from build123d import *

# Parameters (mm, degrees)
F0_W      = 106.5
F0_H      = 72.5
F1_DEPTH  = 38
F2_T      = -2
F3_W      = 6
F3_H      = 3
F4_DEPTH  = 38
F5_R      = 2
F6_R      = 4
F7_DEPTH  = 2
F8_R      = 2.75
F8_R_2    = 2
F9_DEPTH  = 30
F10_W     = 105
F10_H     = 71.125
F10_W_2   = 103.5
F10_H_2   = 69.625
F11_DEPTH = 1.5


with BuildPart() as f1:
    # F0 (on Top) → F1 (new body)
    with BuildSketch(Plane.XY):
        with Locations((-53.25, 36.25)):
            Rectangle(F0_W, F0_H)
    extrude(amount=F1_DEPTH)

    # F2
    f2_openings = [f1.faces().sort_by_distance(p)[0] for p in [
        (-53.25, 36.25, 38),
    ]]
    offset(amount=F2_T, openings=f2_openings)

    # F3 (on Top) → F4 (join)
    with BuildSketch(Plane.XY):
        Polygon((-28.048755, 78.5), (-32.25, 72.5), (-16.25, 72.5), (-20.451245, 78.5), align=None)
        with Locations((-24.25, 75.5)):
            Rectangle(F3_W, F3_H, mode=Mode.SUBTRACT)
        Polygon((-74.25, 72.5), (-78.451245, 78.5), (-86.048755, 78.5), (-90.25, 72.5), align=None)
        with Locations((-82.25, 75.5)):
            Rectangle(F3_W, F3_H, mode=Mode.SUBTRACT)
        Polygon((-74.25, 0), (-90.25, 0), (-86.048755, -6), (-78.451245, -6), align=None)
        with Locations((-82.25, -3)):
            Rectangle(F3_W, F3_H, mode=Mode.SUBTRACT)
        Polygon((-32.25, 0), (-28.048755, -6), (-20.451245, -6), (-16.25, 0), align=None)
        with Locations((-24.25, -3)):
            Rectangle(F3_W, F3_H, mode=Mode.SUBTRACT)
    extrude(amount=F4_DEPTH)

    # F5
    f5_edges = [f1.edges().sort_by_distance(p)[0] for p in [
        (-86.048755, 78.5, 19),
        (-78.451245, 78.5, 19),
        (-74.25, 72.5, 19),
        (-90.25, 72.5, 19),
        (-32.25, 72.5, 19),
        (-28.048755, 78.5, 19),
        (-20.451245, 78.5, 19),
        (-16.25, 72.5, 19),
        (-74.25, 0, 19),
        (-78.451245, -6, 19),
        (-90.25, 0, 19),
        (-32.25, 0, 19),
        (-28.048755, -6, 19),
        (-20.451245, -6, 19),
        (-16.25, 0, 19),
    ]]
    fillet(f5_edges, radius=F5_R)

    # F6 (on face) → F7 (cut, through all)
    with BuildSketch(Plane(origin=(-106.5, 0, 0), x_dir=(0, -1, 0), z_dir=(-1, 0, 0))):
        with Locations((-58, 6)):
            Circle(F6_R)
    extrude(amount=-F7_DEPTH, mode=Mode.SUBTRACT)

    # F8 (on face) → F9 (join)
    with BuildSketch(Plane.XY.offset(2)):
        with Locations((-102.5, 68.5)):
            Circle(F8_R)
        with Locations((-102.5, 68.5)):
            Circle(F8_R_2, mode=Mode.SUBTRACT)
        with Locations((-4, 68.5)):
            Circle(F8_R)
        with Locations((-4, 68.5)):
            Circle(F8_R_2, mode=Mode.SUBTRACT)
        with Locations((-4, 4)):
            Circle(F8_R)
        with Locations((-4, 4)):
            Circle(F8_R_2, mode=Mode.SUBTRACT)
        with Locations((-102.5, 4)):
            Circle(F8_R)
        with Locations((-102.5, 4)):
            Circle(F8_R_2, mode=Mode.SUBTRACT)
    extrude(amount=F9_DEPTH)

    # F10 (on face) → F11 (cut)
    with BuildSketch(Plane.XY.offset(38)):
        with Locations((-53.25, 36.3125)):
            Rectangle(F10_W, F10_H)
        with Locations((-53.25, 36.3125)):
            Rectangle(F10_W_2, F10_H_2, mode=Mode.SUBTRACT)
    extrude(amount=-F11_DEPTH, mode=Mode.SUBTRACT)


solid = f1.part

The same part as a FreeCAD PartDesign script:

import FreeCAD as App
import Part
import Sketcher

V = App.Vector
Q = App.Units.Quantity


def edges_at(feature, points):
    """Names of the edges that pass closest to the given points."""
    edges = feature.Shape.Edges
    near = lambda p: min(range(len(edges)), key=lambda i: edges[i].distToShape(Part.Vertex(*p))[0])
    return sorted({f"Edge{near(p) + 1}" for p in points})


def faces_at(feature, points):
    """Names of the faces that lie closest to the given points."""
    faces = feature.Shape.Faces
    near = lambda p: min(range(len(faces)), key=lambda i: faces[i].distToShape(Part.Vertex(*p))[0])
    return sorted({f"Face{near(p) + 1}" for p in points})

doc = App.newDocument("Part")
body = doc.addObject("PartDesign::Body", "Body")

sketch1 = doc.addObject("Sketcher::SketchObject", "Sketch")
body.addObject(sketch1)
sketch1.AttachmentSupport = (doc.XY_Plane, [""])
sketch1.MapMode = "FlatFace"
sketch1.addGeometry(Part.LineSegment(V(-106.5, 72.5, 0), V(-106.5, 0, 0)), False)
sketch1.addGeometry(Part.LineSegment(V(-106.5, 0, 0), V(0, 0, 0)), False)
sketch1.addGeometry(Part.LineSegment(V(0, 0, 0), V(0, 72.5, 0)), False)
sketch1.addGeometry(Part.LineSegment(V(0, 72.5, 0), V(-106.5, 72.5, 0)), False)
sketch1.addConstraint(Sketcher.Constraint("Coincident", 0, 2, 1, 1))
sketch1.addConstraint(Sketcher.Constraint("Coincident", 1, 2, 2, 1))
sketch1.addConstraint(Sketcher.Constraint("Coincident", 2, 2, 3, 1))
sketch1.addConstraint(Sketcher.Constraint("Coincident", 3, 2, 0, 1))
sketch1.addConstraint(Sketcher.Constraint("Vertical", 0))
sketch1.addConstraint(Sketcher.Constraint("Horizontal", 1))
sketch1.addConstraint(Sketcher.Constraint("Vertical", 2))
sketch1.addConstraint(Sketcher.Constraint("Horizontal", 3))
sketch1.addConstraint(Sketcher.Constraint("Coincident", 1, 2, -1, 1))
sketch1.addConstraint(Sketcher.Constraint("DistanceX", 1, 1, 1, 2, 106.5))
sketch1.addConstraint(Sketcher.Constraint("DistanceY", 0, 2, 0, 1, 72.5))
pad1 = doc.addObject("PartDesign::Pad", "Pad")
body.addObject(pad1)
pad1.Profile = sketch1
pad1.Length = 38
doc.recompute()

thickness = doc.addObject("PartDesign::Thickness", "Thickness")
body.addObject(thickness)
thickness.Base = (pad1, faces_at(pad1, [(-53.25, 36.25, 38)]))
thickness.Value = 2
thickness.Reversed = True
thickness.Join = "Arc"

sketch2 = doc.addObject("Sketcher::SketchObject", "Sketch001")
body.addObject(sketch2)
sketch2.AttachmentSupport = (doc.XY_Plane, [""])
sketch2.MapMode = "FlatFace"
sketch2.addGeometry(Part.LineSegment(V(-28.048755, 78.5, 0), V(-32.25, 72.5, 0)), False)
sketch2.addGeometry(Part.LineSegment(V(-32.25, 72.5, 0), V(-16.25, 72.5, 0)), False)
sketch2.addGeometry(Part.LineSegment(V(-16.25, 72.5, 0), V(-20.451245, 78.5, 0)), False)
sketch2.addGeometry(Part.LineSegment(V(-20.451245, 78.5, 0), V(-28.048755, 78.5, 0)), False)
sketch2.addGeometry(Part.LineSegment(V(-21.25, 74, 0), V(-27.25, 74, 0)), False)
sketch2.addGeometry(Part.LineSegment(V(-27.25, 74, 0), V(-27.25, 77, 0)), False)
sketch2.addGeometry(Part.LineSegment(V(-27.25, 77, 0), V(-21.25, 77, 0)), False)
sketch2.addGeometry(Part.LineSegment(V(-21.25, 77, 0), V(-21.25, 74, 0)), False)
sketch2.addGeometry(Part.LineSegment(V(-74.25, 72.5, 0), V(-78.451245, 78.5, 0)), False)
sketch2.addGeometry(Part.LineSegment(V(-78.451245, 78.5, 0), V(-86.048755, 78.5, 0)), False)
sketch2.addGeometry(Part.LineSegment(V(-86.048755, 78.5, 0), V(-90.25, 72.5, 0)), False)
sketch2.addGeometry(Part.LineSegment(V(-90.25, 72.5, 0), V(-74.25, 72.5, 0)), False)
sketch2.addGeometry(Part.LineSegment(V(-79.25, 74, 0), V(-85.25, 74, 0)), False)
sketch2.addGeometry(Part.LineSegment(V(-85.25, 74, 0), V(-85.25, 77, 0)), False)
sketch2.addGeometry(Part.LineSegment(V(-85.25, 77, 0), V(-79.25, 77, 0)), False)
sketch2.addGeometry(Part.LineSegment(V(-79.25, 77, 0), V(-79.25, 74, 0)), False)
sketch2.addGeometry(Part.LineSegment(V(-74.25, 0, 0), V(-90.25, 0, 0)), False)
sketch2.addGeometry(Part.LineSegment(V(-90.25, 0, 0), V(-86.048755, -6, 0)), False)
sketch2.addGeometry(Part.LineSegment(V(-86.048755, -6, 0), V(-78.451245, -6, 0)), False)
sketch2.addGeometry(Part.LineSegment(V(-78.451245, -6, 0), V(-74.25, 0, 0)), False)
sketch2.addGeometry(Part.LineSegment(V(-79.25, -4.5, 0), V(-85.25, -4.5, 0)), False)
sketch2.addGeometry(Part.LineSegment(V(-85.25, -4.5, 0), V(-85.25, -1.5, 0)), False)
sketch2.addGeometry(Part.LineSegment(V(-85.25, -1.5, 0), V(-79.25, -1.5, 0)), False)
sketch2.addGeometry(Part.LineSegment(V(-79.25, -1.5, 0), V(-79.25, -4.5, 0)), False)
sketch2.addGeometry(Part.LineSegment(V(-32.25, 0, 0), V(-28.048755, -6, 0)), False)
sketch2.addGeometry(Part.LineSegment(V(-28.048755, -6, 0), V(-20.451245, -6, 0)), False)
sketch2.addGeometry(Part.LineSegment(V(-20.451245, -6, 0), V(-16.25, 0, 0)), False)
sketch2.addGeometry(Part.LineSegment(V(-16.25, 0, 0), V(-32.25, 0, 0)), False)
sketch2.addGeometry(Part.LineSegment(V(-21.25, -4.5, 0), V(-27.25, -4.5, 0)), False)
sketch2.addGeometry(Part.LineSegment(V(-27.25, -4.5, 0), V(-27.25, -1.5, 0)), False)
sketch2.addGeometry(Part.LineSegment(V(-27.25, -1.5, 0), V(-21.25, -1.5, 0)), False)
sketch2.addGeometry(Part.LineSegment(V(-21.25, -1.5, 0), V(-21.25, -4.5, 0)), False)
sketch2.addConstraint(Sketcher.Constraint("Coincident", 0, 2, 1, 1))
sketch2.addConstraint(Sketcher.Constraint("Coincident", 1, 2, 2, 1))
sketch2.addConstraint(Sketcher.Constraint("Coincident", 2, 2, 3, 1))
sketch2.addConstraint(Sketcher.Constraint("Coincident", 3, 2, 0, 1))
sketch2.addConstraint(Sketcher.Constraint("Coincident", 4, 2, 5, 1))
sketch2.addConstraint(Sketcher.Constraint("Coincident", 5, 2, 6, 1))
sketch2.addConstraint(Sketcher.Constraint("Coincident", 6, 2, 7, 1))
sketch2.addConstraint(Sketcher.Constraint("Coincident", 7, 2, 4, 1))
sketch2.addConstraint(Sketcher.Constraint("Coincident", 8, 2, 9, 1))
sketch2.addConstraint(Sketcher.Constraint("Coincident", 9, 2, 10, 1))
sketch2.addConstraint(Sketcher.Constraint("Coincident", 10, 2, 11, 1))
sketch2.addConstraint(Sketcher.Constraint("Coincident", 11, 2, 8, 1))
sketch2.addConstraint(Sketcher.Constraint("Coincident", 12, 2, 13, 1))
sketch2.addConstraint(Sketcher.Constraint("Coincident", 13, 2, 14, 1))
sketch2.addConstraint(Sketcher.Constraint("Coincident", 14, 2, 15, 1))
sketch2.addConstraint(Sketcher.Constraint("Coincident", 15, 2, 12, 1))
sketch2.addConstraint(Sketcher.Constraint("Coincident", 16, 2, 17, 1))
sketch2.addConstraint(Sketcher.Constraint("Coincident", 17, 2, 18, 1))
sketch2.addConstraint(Sketcher.Constraint("Coincident", 18, 2, 19, 1))
sketch2.addConstraint(Sketcher.Constraint("Coincident", 19, 2, 16, 1))
sketch2.addConstraint(Sketcher.Constraint("Coincident", 20, 2, 21, 1))
sketch2.addConstraint(Sketcher.Constraint("Coincident", 21, 2, 22, 1))
sketch2.addConstraint(Sketcher.Constraint("Coincident", 22, 2, 23, 1))
sketch2.addConstraint(Sketcher.Constraint("Coincident", 23, 2, 20, 1))
sketch2.addConstraint(Sketcher.Constraint("Coincident", 24, 2, 25, 1))
sketch2.addConstraint(Sketcher.Constraint("Coincident", 25, 2, 26, 1))
sketch2.addConstraint(Sketcher.Constraint("Coincident", 26, 2, 27, 1))
sketch2.addConstraint(Sketcher.Constraint("Coincident", 27, 2, 24, 1))
sketch2.addConstraint(Sketcher.Constraint("Coincident", 28, 2, 29, 1))
sketch2.addConstraint(Sketcher.Constraint("Coincident", 29, 2, 30, 1))
sketch2.addConstraint(Sketcher.Constraint("Coincident", 30, 2, 31, 1))
sketch2.addConstraint(Sketcher.Constraint("Coincident", 31, 2, 28, 1))
sketch2.addConstraint(Sketcher.Constraint("Horizontal", 1))
sketch2.addConstraint(Sketcher.Constraint("Horizontal", 3))
sketch2.addConstraint(Sketcher.Constraint("Horizontal", 4))
sketch2.addConstraint(Sketcher.Constraint("Vertical", 5))
sketch2.addConstraint(Sketcher.Constraint("Horizontal", 6))
sketch2.addConstraint(Sketcher.Constraint("Vertical", 7))
sketch2.addConstraint(Sketcher.Constraint("Horizontal", 9))
sketch2.addConstraint(Sketcher.Constraint("Horizontal", 11))
sketch2.addConstraint(Sketcher.Constraint("Horizontal", 12))
sketch2.addConstraint(Sketcher.Constraint("Vertical", 13))
sketch2.addConstraint(Sketcher.Constraint("Horizontal", 14))
sketch2.addConstraint(Sketcher.Constraint("Vertical", 15))
sketch2.addConstraint(Sketcher.Constraint("Horizontal", 16))
sketch2.addConstraint(Sketcher.Constraint("Horizontal", 18))
sketch2.addConstraint(Sketcher.Constraint("Horizontal", 20))
sketch2.addConstraint(Sketcher.Constraint("Vertical", 21))
sketch2.addConstraint(Sketcher.Constraint("Horizontal", 22))
sketch2.addConstraint(Sketcher.Constraint("Vertical", 23))
sketch2.addConstraint(Sketcher.Constraint("Horizontal", 25))
sketch2.addConstraint(Sketcher.Constraint("Horizontal", 27))
sketch2.addConstraint(Sketcher.Constraint("Horizontal", 28))
sketch2.addConstraint(Sketcher.Constraint("Vertical", 29))
sketch2.addConstraint(Sketcher.Constraint("Horizontal", 30))
sketch2.addConstraint(Sketcher.Constraint("Vertical", 31))
sketch2.addConstraint(Sketcher.Constraint("PointOnObject", 16, 2, -1))
sketch2.addConstraint(Sketcher.Constraint("PointOnObject", 26, 2, -1))
sketch2.addConstraint(Sketcher.Constraint("Parallel", 2, 8))
sketch2.addConstraint(Sketcher.Constraint("Parallel", 0, 10))
sketch2.addConstraint(Sketcher.Constraint("Parallel", 8, 17))
sketch2.addConstraint(Sketcher.Constraint("Parallel", 10, 19))
sketch2.addConstraint(Sketcher.Constraint("Parallel", 17, 24))
sketch2.addConstraint(Sketcher.Constraint("Parallel", 19, 26))
sketch2.addConstraint(Sketcher.Constraint("Horizontal", 3, 2, 8, 2))
sketch2.addConstraint(Sketcher.Constraint("Horizontal", 1, 2, 10, 2))
sketch2.addConstraint(Sketcher.Constraint("Horizontal", 7, 2, 12, 2))
sketch2.addConstraint(Sketcher.Constraint("Horizontal", 6, 2, 13, 2))
sketch2.addConstraint(Sketcher.Constraint("Horizontal", 18, 2, 24, 2))
sketch2.addConstraint(Sketcher.Constraint("Horizontal", 23, 2, 28, 2))
sketch2.addConstraint(Sketcher.Constraint("Horizontal", 22, 2, 29, 2))
sketch2.addConstraint(Sketcher.Constraint("Vertical", 10, 2, 16, 2))
sketch2.addConstraint(Sketcher.Constraint("Vertical", 9, 2, 17, 2))
sketch2.addConstraint(Sketcher.Constraint("Vertical", 8, 2, 18, 2))
sketch2.addConstraint(Sketcher.Constraint("Vertical", 11, 2, 19, 2))
sketch2.addConstraint(Sketcher.Constraint("Vertical", 13, 2, 20, 2))
sketch2.addConstraint(Sketcher.Constraint("Vertical", 15, 2, 22, 2))
sketch2.addConstraint(Sketcher.Constraint("Vertical", 3, 2, 24, 2))
sketch2.addConstraint(Sketcher.Constraint("Vertical", 2, 2, 25, 2))
sketch2.addConstraint(Sketcher.Constraint("Vertical", 5, 2, 28, 2))
sketch2.addConstraint(Sketcher.Constraint("Vertical", 7, 2, 30, 2))
sketch2.addConstraint(Sketcher.Constraint("Equal", 3, 9))
sketch2.addConstraint(Sketcher.Constraint("Equal", 6, 12))
sketch2.addConstraint(Sketcher.Constraint("Equal", 15, 21))
sketch2.addConstraint(Sketcher.Constraint("DistanceX", 1, 1, 1, 2, 16.0))
sketch2.addConstraint(Sketcher.Constraint("DistanceX", 4, 2, 4, 1, 6.0))
sketch2.addConstraint(Sketcher.Constraint("DistanceY", 5, 1, 5, 2, 3.0))
sketch2.addConstraint(Sketcher.Constraint("Angle", 0, Q("-124.999999 deg")))
sketch2.addConstraint(Sketcher.Constraint("DistanceY", -1, 1, 4, 2, 74.0))
sketch2.addConstraint(Sketcher.Constraint("DistanceY", 17, 2, -1, 1, 6.0))
sketch2.addConstraint(Sketcher.Constraint("DistanceX", 0, 2, 4, 2, 5.0))
sketch2.addConstraint(Sketcher.Constraint("DistanceX", 9, 2, 3, 2, 58.0))
sketch2.addConstraint(Sketcher.Constraint("DistanceX", 10, 2, 12, 2, 5.0))
sketch2.addConstraint(Sketcher.Constraint("DistanceY", 20, 2, 10, 2, 77.0))
sketch2.addConstraint(Sketcher.Constraint("DistanceY", -1, 1, 0, 2, 72.5))
sketch2.addConstraint(Sketcher.Constraint("DistanceX", 0, 2, -1, 1, 32.25))
pad2 = doc.addObject("PartDesign::Pad", "Pad001")
body.addObject(pad2)
pad2.Profile = sketch2
pad2.Length = 38
doc.recompute()

fillet = doc.addObject("PartDesign::Fillet", "Fillet")
body.addObject(fillet)
fillet.Base = (pad2, edges_at(pad2, [
    (-86.049, 78.5, 19),
    (-78.451, 78.5, 19),
    (-74.25, 72.5, 19),
    (-90.25, 72.5, 19),
    (-32.25, 72.5, 19),
    (-28.049, 78.5, 19),
    (-20.451, 78.5, 19),
    (-16.25, 72.5, 19),
    (-74.25, 0, 19),
    (-78.451, -6, 19),
    (-90.25, 0, 19),
    (-32.25, 0, 19),
    (-28.049, -6, 19),
    (-20.451, -6, 19),
    (-16.25, 0, 19),
]))
fillet.Radius = 2

sketch3 = doc.addObject("Sketcher::SketchObject", "Sketch002")
body.addObject(sketch3)
sketch3.AttachmentSupport = (doc.YZ_Plane, [""])
sketch3.MapMode = "FlatFace"
sketch3.AttachmentOffset = App.Placement(V(0, 0, -106.5), App.Rotation())
sketch3.addGeometry(Part.Circle(V(58, 6, 0), V(0, 0, 1), 4), False)
sketch3.addConstraint(Sketcher.Constraint("Diameter", 0, 8.0))
sketch3.addConstraint(Sketcher.Constraint("DistanceX", -1, 1, 0, 3, 58.0))
sketch3.addConstraint(Sketcher.Constraint("DistanceY", -1, 1, 0, 3, 6.0))
pocket1 = doc.addObject("PartDesign::Pocket", "Pocket")
body.addObject(pocket1)
pocket1.Profile = sketch3
pocket1.Length = 2
pocket1.Reversed = True

sketch4 = doc.addObject("Sketcher::SketchObject", "Sketch003")
body.addObject(sketch4)
sketch4.AttachmentSupport = (doc.XY_Plane, [""])
sketch4.MapMode = "FlatFace"
sketch4.AttachmentOffset = App.Placement(V(0, 0, 2), App.Rotation())
sketch4.addGeometry(Part.Circle(V(-102.5, 68.5, 0), V(0, 0, 1), 2.75), False)
sketch4.addGeometry(Part.Circle(V(-102.5, 68.5, 0), V(0, 0, 1), 2), False)
sketch4.addGeometry(Part.Circle(V(-4, 68.5, 0), V(0, 0, 1), 2.75), False)
sketch4.addGeometry(Part.Circle(V(-4, 68.5, 0), V(0, 0, 1), 2), False)
sketch4.addGeometry(Part.Circle(V(-4, 4, 0), V(0, 0, 1), 2.75), False)
sketch4.addGeometry(Part.Circle(V(-4, 4, 0), V(0, 0, 1), 2), False)
sketch4.addGeometry(Part.Circle(V(-102.5, 4, 0), V(0, 0, 1), 2.75), False)
sketch4.addGeometry(Part.Circle(V(-102.5, 4, 0), V(0, 0, 1), 2), False)
sketch4.addConstraint(Sketcher.Constraint("Coincident", 1, 3, 0, 3))
sketch4.addConstraint(Sketcher.Constraint("Coincident", 3, 3, 2, 3))
sketch4.addConstraint(Sketcher.Constraint("Coincident", 5, 3, 4, 3))
sketch4.addConstraint(Sketcher.Constraint("Coincident", 7, 3, 6, 3))
sketch4.addConstraint(Sketcher.Constraint("Equal", 0, 2))
sketch4.addConstraint(Sketcher.Constraint("Equal", 1, 3))
sketch4.addConstraint(Sketcher.Constraint("Equal", 2, 4))
sketch4.addConstraint(Sketcher.Constraint("Equal", 3, 5))
sketch4.addConstraint(Sketcher.Constraint("Equal", 4, 6))
sketch4.addConstraint(Sketcher.Constraint("Equal", 5, 7))
sketch4.addConstraint(Sketcher.Constraint("Horizontal", 1, 3, 2, 3))
sketch4.addConstraint(Sketcher.Constraint("Horizontal", 5, 3, 6, 3))
sketch4.addConstraint(Sketcher.Constraint("Vertical", 3, 3, 4, 3))
sketch4.addConstraint(Sketcher.Constraint("Vertical", 1, 3, 6, 3))
sketch4.addConstraint(Sketcher.Constraint("Diameter", 1, 4.0))
sketch4.addConstraint(Sketcher.Constraint("Diameter", 0, 5.5))
sketch4.addConstraint(Sketcher.Constraint("DistanceX", 2, 3, -1, 1, 4.0))
sketch4.addConstraint(Sketcher.Constraint("DistanceY", -1, 1, 4, 3, 4.0))
sketch4.addConstraint(Sketcher.Constraint("DistanceX", 0, 3, -1, 1, 102.5))
sketch4.addConstraint(Sketcher.Constraint("DistanceY", -1, 1, 0, 3, 68.5))
pad3 = doc.addObject("PartDesign::Pad", "Pad002")
body.addObject(pad3)
pad3.Profile = sketch4
pad3.Length = 30

sketch5 = doc.addObject("Sketcher::SketchObject", "Sketch004")
body.addObject(sketch5)
sketch5.AttachmentSupport = (doc.XY_Plane, [""])
sketch5.MapMode = "FlatFace"
sketch5.AttachmentOffset = App.Placement(V(0, 0, 38), App.Rotation())
sketch5.addGeometry(Part.LineSegment(V(-105.75, 71.875, 0), V(-105.75, 0.75, 0)), False)
sketch5.addGeometry(Part.LineSegment(V(-105.75, 0.75, 0), V(-0.75, 0.75, 0)), False)
sketch5.addGeometry(Part.LineSegment(V(-0.75, 0.75, 0), V(-0.75, 71.875, 0)), False)
sketch5.addGeometry(Part.LineSegment(V(-0.75, 71.875, 0), V(-105.75, 71.875, 0)), False)
sketch5.addGeometry(Part.LineSegment(V(-1.5, 1.5, 0), V(-105, 1.5, 0)), False)
sketch5.addGeometry(Part.LineSegment(V(-105, 1.5, 0), V(-105, 71.125, 0)), False)
sketch5.addGeometry(Part.LineSegment(V(-105, 71.125, 0), V(-1.5, 71.125, 0)), False)
sketch5.addGeometry(Part.LineSegment(V(-1.5, 71.125, 0), V(-1.5, 1.5, 0)), False)
sketch5.addConstraint(Sketcher.Constraint("Coincident", 0, 2, 1, 1))
sketch5.addConstraint(Sketcher.Constraint("Coincident", 1, 2, 2, 1))
sketch5.addConstraint(Sketcher.Constraint("Coincident", 2, 2, 3, 1))
sketch5.addConstraint(Sketcher.Constraint("Coincident", 3, 2, 0, 1))
sketch5.addConstraint(Sketcher.Constraint("Coincident", 4, 2, 5, 1))
sketch5.addConstraint(Sketcher.Constraint("Coincident", 5, 2, 6, 1))
sketch5.addConstraint(Sketcher.Constraint("Coincident", 6, 2, 7, 1))
sketch5.addConstraint(Sketcher.Constraint("Coincident", 7, 2, 4, 1))
sketch5.addConstraint(Sketcher.Constraint("Vertical", 0))
sketch5.addConstraint(Sketcher.Constraint("Horizontal", 1))
sketch5.addConstraint(Sketcher.Constraint("Vertical", 2))
sketch5.addConstraint(Sketcher.Constraint("Horizontal", 3))
sketch5.addConstraint(Sketcher.Constraint("Horizontal", 4))
sketch5.addConstraint(Sketcher.Constraint("Vertical", 5))
sketch5.addConstraint(Sketcher.Constraint("Horizontal", 6))
sketch5.addConstraint(Sketcher.Constraint("Vertical", 7))
sketch5.addConstraint(Sketcher.Constraint("DistanceX", 1, 1, 1, 2, 105.0))
sketch5.addConstraint(Sketcher.Constraint("DistanceX", 4, 2, 4, 1, 103.5))
sketch5.addConstraint(Sketcher.Constraint("DistanceX", 4, 2, -1, 1, 105.0))
sketch5.addConstraint(Sketcher.Constraint("DistanceY", -1, 1, 4, 2, 1.5))
sketch5.addConstraint(Sketcher.Constraint("DistanceY", 0, 2, 0, 1, 71.125))
sketch5.addConstraint(Sketcher.Constraint("DistanceY", 5, 1, 5, 2, 69.625))
sketch5.addConstraint(Sketcher.Constraint("DistanceX", 0, 2, -1, 1, 105.75))
sketch5.addConstraint(Sketcher.Constraint("DistanceY", -1, 1, 0, 2, 0.75))
pocket2 = doc.addObject("PartDesign::Pocket", "Pocket001")
body.addObject(pocket2)
pocket2.Profile = sketch5
pocket2.Length = 1.5

doc.recompute()
